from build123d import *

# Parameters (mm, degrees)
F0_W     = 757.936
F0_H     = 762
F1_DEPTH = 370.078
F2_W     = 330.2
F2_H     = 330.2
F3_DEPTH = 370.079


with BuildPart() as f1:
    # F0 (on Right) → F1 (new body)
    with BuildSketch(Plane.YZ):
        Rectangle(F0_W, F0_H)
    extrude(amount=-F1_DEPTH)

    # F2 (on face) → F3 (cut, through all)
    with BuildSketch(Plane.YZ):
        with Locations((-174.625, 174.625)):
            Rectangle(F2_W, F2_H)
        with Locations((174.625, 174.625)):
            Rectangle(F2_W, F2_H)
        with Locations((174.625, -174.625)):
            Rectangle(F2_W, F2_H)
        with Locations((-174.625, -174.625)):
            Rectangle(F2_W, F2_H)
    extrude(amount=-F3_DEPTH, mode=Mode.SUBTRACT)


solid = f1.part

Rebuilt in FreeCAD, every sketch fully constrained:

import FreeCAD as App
import Part
import Sketcher
Q = App.Units.Quantity

doc = App.newDocument("Part")
params = doc.addObject("Spreadsheet::Sheet", "Params")
for row, (alias, value) in enumerate([
    ("sketch1_height", "30 in"),
    ("sketch1_width", "29.84 in"),
    ("pad1_length", "14.57 in"),
    ("sketch2_width", "13 in"),
], start=1):
    params.set(f"A{row}", alias)
    params.set(f"B{row}", "=" + value)
    params.setAlias(f"B{row}", alias)

body = doc.addObject("PartDesign::Body", "Body")

sketch1 = body.newObject("Sketcher::SketchObject", "Sketch")
sketch1.AttachmentSupport = (doc.getObject("YZ_Plane"), [""])
sketch1.MapMode = "FlatFace"
sketch1.addGeometry(Part.LineSegment(App.Vector(-378.968, 381, 0), App.Vector(-378.968, -381, 0)), False)
sketch1.addGeometry(Part.LineSegment(App.Vector(-378.968, -381, 0), App.Vector(378.968, -381, 0)), False)
sketch1.addGeometry(Part.LineSegment(App.Vector(378.968, -381, 0), App.Vector(378.968, 381, 0)), False)
sketch1.addGeometry(Part.LineSegment(App.Vector(378.968, 381, 0), App.Vector(-378.968, 381, 0)), False)
sketch1.addConstraint(Sketcher.Constraint("Coincident", 0, 2, 1, 1))
sketch1.addConstraint(Sketcher.Constraint("Coincident", 1, 2, 2, 1))
sketch1.addConstraint(Sketcher.Constraint("Coincident", 2, 2, 3, 1))
sketch1.addConstraint(Sketcher.Constraint("Coincident", 3, 2, 0, 1))
sketch1.addConstraint(Sketcher.Constraint("Vertical", 0))
sketch1.addConstraint(Sketcher.Constraint("Horizontal", 1))
sketch1.addConstraint(Sketcher.Constraint("Vertical", 2))
sketch1.addConstraint(Sketcher.Constraint("Horizontal", 3))
sketch1.addConstraint(Sketcher.Constraint("Symmetric", 0, 2, 2, 2, -1, 1))
sketch1.addConstraint(Sketcher.Constraint("DistanceY", 0, 2, 0, 1, Q("30 in")))
sketch1.addConstraint(Sketcher.Constraint("DistanceX", 1, 1, 1, 2, Q("29.84 in")))
sketch1.setExpression("Constraints[9]", "Params.sketch1_height")
sketch1.setExpression("Constraints[10]", "Params.sketch1_width")
pad1 = body.newObject("PartDesign::Pad", "Pad")
pad1.Profile = sketch1
pad1.setExpression("Length", "Params.pad1_length")
pad1.Reversed = True

sketch2 = body.newObject("Sketcher::SketchObject", "Sketch001")
sketch2.AttachmentSupport = (doc.getObject("YZ_Plane"), [""])
sketch2.MapMode = "FlatFace"
sketch2.addGeometry(Part.LineSegment(App.Vector(-339.725, 339.725, 0), App.Vector(-339.725, 9.525, 0)), False)
sketch2.addGeometry(Part.LineSegment(App.Vector(-339.725, 9.525, 0), App.Vector(-9.525, 9.525, 0)), False)
sketch2.addGeometry(Part.LineSegment(App.Vector(-9.525, 9.525, 0), App.Vector(-9.525, 339.725, 0)), False)
sketch2.addGeometry(Part.LineSegment(App.Vector(-9.525, 339.725, 0), App.Vector(-339.725, 339.725, 0)), False)
sketch2.addGeometry(Part.LineSegment(App.Vector(9.525, 339.725, 0), App.Vector(9.525, 9.525, 0)), False)
sketch2.addGeometry(Part.LineSegment(App.Vector(9.525, 9.525, 0), App.Vector(339.725, 9.525, 0)), False)
sketch2.addGeometry(Part.LineSegment(App.Vector(339.725, 9.525, 0), App.Vector(339.725, 339.725, 0)), False)
sketch2.addGeometry(Part.LineSegment(App.Vector(339.725, 339.725, 0), App.Vector(9.525, 339.725, 0)), False)
sketch2.addGeometry(Part.LineSegment(App.Vector(9.525, -9.525, 0), App.Vector(9.525, -339.725, 0)), False)
sketch2.addGeometry(Part.LineSegment(App.Vector(9.525, -339.725, 0), App.Vector(339.725, -339.725, 0)), False)
sketch2.addGeometry(Part.LineSegment(App.Vector(339.725, -339.725, 0), App.Vector(339.725, -9.525, 0)), False)
sketch2.addGeometry(Part.LineSegment(App.Vector(339.725, -9.525, 0), App.Vector(9.525, -9.525, 0)), False)
sketch2.addGeometry(Part.LineSegment(App.Vector(-339.725, -9.525, 0), App.Vector(-339.725, -339.725, 0)), False)
sketch2.addGeometry(Part.LineSegment(App.Vector(-339.725, -339.725, 0), App.Vector(-9.525, -339.725, 0)), False)
sketch2.addGeometry(Part.LineSegment(App.Vector(-9.525, -339.725, 0), App.Vector(-9.525, -9.525, 0)), False)
sketch2.addGeometry(Part.LineSegment(App.Vector(-9.525, -9.525, 0), App.Vector(-339.725, -9.525, 0)), False)
sketch2.addConstraint(Sketcher.Constraint("Coincident", 0, 2, 1, 1))
sketch2.addConstraint(Sketcher.Constraint("Coincident", 1, 2, 2, 1))
sketch2.addConstraint(Sketcher.Constraint("Coincident", 2, 2, 3, 1))
sketch2.addConstraint(Sketcher.Constraint("Coincident", 3, 2, 0, 1))
sketch2.addConstraint(Sketcher.Constraint("Coincident", 4, 2, 5, 1))
sketch2.addConstraint(Sketcher.Constraint("Coincident", 5, 2, 6, 1))
sketch2.addConstraint(Sketcher.Constraint("Coincident", 6, 2, 7, 1))
sketch2.addConstraint(Sketcher.Constraint("Coincident", 7, 2, 4, 1))
sketch2.addConstraint(Sketcher.Constraint("Coincident", 8, 2, 9, 1))
sketch2.addConstraint(Sketcher.Constraint("Coincident", 9, 2, 10, 1))
sketch2.addConstraint(Sketcher.Constraint("Coincident", 10, 2, 11, 1))
sketch2.addConstraint(Sketcher.Constraint("Coincident", 11, 2, 8, 1))
sketch2.addConstraint(Sketcher.Constraint("Coincident", 12, 2, 13, 1))
sketch2.addConstraint(Sketcher.Constraint("Coincident", 13, 2, 14, 1))
sketch2.addConstraint(Sketcher.Constraint("Coincident", 14, 2, 15, 1))
sketch2.addConstraint(Sketcher.Constraint("Coincident", 15, 2, 12, 1))
sketch2.addConstraint(Sketcher.Constraint("Vertical", 0))
sketch2.addConstraint(Sketcher.Constraint("Horizontal", 1))
sketch2.addConstraint(Sketcher.Constraint("Vertical", 2))
sketch2.addConstraint(Sketcher.Constraint("Horizontal", 3))
sketch2.addConstraint(Sketcher.Constraint("Vertical", 4))
sketch2.addConstraint(Sketcher.Constraint("Horizontal", 5))
sketch2.addConstraint(Sketcher.Constraint("Vertical", 6))
sketch2.addConstraint(Sketcher.Constraint("Horizontal", 7))
sketch2.addConstraint(Sketcher.Constraint("Vertical", 8))
sketch2.addConstraint(Sketcher.Constraint("Horizontal", 9))
sketch2.addConstraint(Sketcher.Constraint("Vertical", 10))
sketch2.addConstraint(Sketcher.Constraint("Horizontal", 11))
sketch2.addConstraint(Sketcher.Constraint("Vertical", 12))
sketch2.addConstraint(Sketcher.Constraint("Horizontal", 13))
sketch2.addConstraint(Sketcher.Constraint("Vertical", 14))
sketch2.addConstraint(Sketcher.Constraint("Horizontal", 15))
sketch2.addConstraint(Sketcher.Constraint("Symmetric", 2, 2, 8, 2, -1, 1))
sketch2.addConstraint(Sketcher.Constraint("Symmetric", 0, 2, 10, 2, -1, 1))
sketch2.addConstraint(Sketcher.Constraint("Symmetric", 6, 2, 12, 2, -1, 1))
sketch2.addConstraint(Sketcher.Constraint("Symmetric", 4, 2, 14, 2, -1, 1))
sketch2.addConstraint(Sketcher.Constraint("Symmetric", 1, 2, 4, 2, -2))
sketch2.addConstraint(Sketcher.Constraint("Symmetric", 3, 2, 6, 2, -2))
sketch2.addConstraint(Sketcher.Constraint("Equal", 15, 0))
sketch2.addConstraint(Sketcher.Constraint("DistanceX", 1, 1, 1, 2, Q("13 in")))
sketch2.addConstraint(Sketcher.Constraint("DistanceX", 1, 2, 4, 2, Q("0.75 in")))
sketch2.addConstraint(Sketcher.Constraint("DistanceY", 8, 2, 4, 2, Q("13.75 in")))
sketch2.setExpression("Constraints[39]", "Params.sketch2_width")
pocket1 = body.newObject("PartDesign::Pocket", "Pocket")
pocket1.Profile = sketch2
pocket1.Type = "ThroughAll"

doc.recompute()
